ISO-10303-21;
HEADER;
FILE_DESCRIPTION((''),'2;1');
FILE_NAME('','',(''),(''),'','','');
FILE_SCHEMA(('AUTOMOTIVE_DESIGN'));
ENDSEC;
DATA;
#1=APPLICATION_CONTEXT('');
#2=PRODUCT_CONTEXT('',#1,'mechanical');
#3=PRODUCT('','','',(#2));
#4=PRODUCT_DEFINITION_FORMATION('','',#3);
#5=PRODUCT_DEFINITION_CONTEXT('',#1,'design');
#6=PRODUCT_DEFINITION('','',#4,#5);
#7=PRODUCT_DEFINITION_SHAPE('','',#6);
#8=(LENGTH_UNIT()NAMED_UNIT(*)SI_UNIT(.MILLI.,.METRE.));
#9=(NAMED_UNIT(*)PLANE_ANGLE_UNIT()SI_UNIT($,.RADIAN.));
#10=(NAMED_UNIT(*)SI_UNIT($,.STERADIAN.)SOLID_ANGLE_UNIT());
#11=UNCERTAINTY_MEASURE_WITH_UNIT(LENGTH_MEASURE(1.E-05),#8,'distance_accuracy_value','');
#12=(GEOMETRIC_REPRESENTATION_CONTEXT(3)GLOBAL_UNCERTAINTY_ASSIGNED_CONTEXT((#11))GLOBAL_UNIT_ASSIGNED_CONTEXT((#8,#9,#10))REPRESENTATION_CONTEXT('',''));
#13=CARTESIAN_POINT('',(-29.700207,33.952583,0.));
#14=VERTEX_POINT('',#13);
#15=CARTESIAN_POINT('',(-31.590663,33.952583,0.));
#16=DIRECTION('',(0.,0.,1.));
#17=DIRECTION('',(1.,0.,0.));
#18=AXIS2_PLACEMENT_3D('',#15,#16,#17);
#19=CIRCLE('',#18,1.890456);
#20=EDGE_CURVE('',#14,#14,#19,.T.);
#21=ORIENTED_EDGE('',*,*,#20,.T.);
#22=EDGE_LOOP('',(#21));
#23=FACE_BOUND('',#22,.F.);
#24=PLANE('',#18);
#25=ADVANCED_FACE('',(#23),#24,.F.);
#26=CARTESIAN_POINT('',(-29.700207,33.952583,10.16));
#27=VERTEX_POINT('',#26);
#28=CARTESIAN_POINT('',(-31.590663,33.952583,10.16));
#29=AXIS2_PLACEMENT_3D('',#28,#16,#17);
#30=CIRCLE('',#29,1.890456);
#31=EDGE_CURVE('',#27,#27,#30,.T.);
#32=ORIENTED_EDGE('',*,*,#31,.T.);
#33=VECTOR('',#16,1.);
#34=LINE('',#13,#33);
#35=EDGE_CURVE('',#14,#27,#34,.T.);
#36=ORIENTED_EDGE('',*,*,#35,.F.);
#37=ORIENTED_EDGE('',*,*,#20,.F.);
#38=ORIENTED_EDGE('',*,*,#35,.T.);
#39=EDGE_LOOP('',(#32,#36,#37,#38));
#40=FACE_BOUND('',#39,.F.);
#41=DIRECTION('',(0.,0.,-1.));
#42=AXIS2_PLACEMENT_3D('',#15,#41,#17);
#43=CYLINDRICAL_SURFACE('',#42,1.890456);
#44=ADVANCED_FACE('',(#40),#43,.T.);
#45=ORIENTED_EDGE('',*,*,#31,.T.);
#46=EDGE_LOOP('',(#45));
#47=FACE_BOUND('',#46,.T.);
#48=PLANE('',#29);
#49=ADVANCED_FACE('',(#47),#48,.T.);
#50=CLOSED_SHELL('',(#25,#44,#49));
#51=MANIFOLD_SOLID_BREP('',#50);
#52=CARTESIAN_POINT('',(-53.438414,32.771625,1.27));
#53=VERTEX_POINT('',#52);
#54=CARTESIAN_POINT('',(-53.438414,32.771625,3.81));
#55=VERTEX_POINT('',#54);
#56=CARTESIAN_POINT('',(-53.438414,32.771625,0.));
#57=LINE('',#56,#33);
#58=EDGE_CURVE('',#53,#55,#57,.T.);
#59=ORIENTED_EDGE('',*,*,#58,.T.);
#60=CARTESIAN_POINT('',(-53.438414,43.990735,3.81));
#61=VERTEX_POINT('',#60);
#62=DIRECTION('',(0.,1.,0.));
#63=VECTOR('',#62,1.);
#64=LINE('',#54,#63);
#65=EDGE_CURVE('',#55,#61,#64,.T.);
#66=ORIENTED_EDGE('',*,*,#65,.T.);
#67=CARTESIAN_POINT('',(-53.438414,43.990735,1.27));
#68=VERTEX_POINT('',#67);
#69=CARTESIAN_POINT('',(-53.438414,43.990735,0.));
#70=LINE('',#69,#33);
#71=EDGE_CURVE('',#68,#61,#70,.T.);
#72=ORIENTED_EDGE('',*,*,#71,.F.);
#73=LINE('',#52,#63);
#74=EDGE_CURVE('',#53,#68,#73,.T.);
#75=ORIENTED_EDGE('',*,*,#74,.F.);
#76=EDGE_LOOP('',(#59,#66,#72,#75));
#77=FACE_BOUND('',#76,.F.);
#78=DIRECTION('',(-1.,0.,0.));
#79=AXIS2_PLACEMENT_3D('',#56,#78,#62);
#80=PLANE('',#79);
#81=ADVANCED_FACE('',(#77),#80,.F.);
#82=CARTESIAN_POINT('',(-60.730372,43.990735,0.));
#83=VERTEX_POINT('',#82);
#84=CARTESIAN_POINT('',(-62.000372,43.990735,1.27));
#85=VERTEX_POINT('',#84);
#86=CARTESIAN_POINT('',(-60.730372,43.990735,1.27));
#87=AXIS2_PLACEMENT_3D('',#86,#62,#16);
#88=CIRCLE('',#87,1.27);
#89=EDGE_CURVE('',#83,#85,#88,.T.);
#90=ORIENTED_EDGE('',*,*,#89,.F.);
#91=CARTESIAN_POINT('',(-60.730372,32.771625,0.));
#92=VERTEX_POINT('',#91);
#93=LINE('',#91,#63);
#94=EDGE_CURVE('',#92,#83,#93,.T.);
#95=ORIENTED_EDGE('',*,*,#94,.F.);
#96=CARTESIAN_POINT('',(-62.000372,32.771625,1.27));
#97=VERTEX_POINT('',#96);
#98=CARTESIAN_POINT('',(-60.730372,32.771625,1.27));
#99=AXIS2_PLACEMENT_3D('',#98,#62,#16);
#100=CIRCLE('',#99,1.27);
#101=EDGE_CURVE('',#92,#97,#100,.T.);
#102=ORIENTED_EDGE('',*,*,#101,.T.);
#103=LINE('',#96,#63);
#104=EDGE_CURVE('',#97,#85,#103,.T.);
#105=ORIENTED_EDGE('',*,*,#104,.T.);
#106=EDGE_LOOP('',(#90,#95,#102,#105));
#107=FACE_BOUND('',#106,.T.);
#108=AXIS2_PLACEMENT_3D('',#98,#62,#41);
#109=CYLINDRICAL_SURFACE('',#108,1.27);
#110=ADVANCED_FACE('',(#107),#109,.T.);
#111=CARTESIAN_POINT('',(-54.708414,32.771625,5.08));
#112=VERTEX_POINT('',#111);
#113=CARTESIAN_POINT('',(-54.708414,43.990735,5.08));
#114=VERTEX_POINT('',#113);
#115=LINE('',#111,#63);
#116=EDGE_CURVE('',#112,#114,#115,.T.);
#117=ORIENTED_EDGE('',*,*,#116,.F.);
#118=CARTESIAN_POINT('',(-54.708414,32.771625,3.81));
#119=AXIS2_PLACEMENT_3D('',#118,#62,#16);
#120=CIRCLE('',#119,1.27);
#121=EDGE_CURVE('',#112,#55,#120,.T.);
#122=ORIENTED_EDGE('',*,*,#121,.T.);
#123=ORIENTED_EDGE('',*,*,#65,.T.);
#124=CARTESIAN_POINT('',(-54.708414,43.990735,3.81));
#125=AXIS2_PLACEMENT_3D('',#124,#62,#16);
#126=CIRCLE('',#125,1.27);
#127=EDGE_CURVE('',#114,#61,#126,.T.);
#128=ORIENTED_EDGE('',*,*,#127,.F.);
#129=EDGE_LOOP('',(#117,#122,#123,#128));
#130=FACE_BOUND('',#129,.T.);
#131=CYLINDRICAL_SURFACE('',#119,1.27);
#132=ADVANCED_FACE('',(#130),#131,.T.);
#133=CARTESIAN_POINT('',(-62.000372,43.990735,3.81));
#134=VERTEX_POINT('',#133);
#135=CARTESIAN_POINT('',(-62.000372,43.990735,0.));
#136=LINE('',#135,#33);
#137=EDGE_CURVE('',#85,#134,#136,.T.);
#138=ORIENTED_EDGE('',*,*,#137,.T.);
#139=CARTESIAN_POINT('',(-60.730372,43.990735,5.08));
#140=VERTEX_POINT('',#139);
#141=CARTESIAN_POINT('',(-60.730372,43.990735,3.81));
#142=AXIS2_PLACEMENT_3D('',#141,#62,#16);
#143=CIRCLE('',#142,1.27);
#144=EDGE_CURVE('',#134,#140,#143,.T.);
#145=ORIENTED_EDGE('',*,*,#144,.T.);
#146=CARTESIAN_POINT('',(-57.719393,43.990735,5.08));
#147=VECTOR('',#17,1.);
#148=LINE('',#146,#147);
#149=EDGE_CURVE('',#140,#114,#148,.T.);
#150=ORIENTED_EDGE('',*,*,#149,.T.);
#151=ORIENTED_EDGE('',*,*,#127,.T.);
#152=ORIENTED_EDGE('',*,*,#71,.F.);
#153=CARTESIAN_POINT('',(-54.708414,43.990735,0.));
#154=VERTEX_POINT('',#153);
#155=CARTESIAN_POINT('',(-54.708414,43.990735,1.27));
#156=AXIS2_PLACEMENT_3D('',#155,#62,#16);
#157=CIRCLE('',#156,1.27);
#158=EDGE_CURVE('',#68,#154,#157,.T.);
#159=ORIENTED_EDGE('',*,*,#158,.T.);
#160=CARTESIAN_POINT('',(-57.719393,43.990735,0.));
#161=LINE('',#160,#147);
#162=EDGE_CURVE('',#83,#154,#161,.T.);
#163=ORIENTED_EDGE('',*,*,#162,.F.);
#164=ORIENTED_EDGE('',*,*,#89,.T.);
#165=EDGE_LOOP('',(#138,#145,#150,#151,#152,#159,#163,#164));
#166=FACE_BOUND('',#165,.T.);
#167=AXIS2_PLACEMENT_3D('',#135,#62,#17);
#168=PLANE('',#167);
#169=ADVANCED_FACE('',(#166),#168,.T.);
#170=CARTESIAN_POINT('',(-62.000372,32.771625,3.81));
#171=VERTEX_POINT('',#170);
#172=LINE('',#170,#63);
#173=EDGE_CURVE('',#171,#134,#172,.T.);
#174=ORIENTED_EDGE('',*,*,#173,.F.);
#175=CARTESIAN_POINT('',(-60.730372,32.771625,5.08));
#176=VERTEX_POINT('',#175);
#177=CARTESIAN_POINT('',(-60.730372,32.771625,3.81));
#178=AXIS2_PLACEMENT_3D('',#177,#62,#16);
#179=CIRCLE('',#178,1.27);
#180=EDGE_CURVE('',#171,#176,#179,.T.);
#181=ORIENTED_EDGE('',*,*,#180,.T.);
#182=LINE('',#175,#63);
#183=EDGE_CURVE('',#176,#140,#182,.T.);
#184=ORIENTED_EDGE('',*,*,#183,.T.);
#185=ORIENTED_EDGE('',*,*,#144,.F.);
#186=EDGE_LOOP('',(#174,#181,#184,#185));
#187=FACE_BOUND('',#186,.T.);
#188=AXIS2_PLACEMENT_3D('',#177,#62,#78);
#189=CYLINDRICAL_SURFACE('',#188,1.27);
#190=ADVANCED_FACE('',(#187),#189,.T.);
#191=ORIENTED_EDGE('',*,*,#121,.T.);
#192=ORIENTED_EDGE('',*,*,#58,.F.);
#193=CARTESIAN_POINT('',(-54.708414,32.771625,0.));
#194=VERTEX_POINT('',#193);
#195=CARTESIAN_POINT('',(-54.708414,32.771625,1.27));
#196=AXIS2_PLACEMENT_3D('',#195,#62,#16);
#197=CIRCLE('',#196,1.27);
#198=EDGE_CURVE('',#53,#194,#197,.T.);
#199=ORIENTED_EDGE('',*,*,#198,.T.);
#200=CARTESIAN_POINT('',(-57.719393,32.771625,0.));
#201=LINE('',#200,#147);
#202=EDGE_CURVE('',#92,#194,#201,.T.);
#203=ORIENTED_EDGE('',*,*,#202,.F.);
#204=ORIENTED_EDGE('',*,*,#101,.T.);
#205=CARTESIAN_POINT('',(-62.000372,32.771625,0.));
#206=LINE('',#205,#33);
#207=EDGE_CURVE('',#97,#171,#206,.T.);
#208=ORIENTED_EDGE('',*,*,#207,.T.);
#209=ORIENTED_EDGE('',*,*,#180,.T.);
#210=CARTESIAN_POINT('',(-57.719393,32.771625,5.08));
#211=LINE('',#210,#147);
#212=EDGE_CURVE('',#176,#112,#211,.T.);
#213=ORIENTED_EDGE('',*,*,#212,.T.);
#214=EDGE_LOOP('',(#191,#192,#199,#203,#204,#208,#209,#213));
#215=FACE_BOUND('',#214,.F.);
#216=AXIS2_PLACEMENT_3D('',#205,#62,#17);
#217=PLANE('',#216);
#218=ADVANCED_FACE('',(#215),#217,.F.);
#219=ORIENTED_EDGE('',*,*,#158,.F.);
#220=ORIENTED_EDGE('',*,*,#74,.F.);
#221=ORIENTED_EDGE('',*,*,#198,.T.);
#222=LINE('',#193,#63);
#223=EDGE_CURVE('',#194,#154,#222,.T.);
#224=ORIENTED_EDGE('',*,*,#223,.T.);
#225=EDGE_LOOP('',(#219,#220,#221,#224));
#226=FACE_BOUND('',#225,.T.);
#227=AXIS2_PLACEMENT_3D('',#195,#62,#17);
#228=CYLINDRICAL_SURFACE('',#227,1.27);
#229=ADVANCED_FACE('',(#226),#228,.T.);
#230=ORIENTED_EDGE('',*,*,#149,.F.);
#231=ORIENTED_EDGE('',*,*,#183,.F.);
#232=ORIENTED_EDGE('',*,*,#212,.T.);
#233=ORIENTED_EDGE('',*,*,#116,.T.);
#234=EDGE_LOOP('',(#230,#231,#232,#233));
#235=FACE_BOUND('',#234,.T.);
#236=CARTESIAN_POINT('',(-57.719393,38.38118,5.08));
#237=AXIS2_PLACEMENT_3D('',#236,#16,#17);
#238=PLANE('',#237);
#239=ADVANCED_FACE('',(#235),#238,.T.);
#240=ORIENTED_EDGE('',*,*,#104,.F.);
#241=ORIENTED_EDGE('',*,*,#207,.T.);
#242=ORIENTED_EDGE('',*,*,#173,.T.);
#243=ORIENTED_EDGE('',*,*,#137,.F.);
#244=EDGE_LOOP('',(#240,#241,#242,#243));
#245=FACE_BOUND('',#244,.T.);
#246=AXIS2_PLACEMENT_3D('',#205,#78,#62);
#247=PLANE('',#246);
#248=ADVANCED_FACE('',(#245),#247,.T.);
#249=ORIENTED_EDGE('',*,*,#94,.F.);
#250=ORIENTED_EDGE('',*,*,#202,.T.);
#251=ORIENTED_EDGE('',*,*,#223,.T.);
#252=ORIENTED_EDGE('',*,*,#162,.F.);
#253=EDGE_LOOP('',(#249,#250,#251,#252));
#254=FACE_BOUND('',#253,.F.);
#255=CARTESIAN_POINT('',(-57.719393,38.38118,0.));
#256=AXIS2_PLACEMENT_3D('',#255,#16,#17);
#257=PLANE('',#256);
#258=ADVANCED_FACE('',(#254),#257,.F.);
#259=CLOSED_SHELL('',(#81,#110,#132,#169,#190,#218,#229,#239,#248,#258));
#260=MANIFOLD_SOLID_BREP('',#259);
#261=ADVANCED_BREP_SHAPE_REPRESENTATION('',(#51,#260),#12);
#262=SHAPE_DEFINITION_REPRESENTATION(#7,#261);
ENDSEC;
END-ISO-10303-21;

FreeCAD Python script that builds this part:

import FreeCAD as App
import Part
import Sketcher
from FreeCAD import Vector
Q = App.Units.Quantity


def edges_at(feature, points):
    """Names of the edges that pass closest to the given points."""
    edges = feature.Shape.Edges
    near = lambda p: min(range(len(edges)), key=lambda i: edges[i].distToShape(Part.Vertex(*p))[0])
    return sorted({f"Edge{near(p) + 1}" for p in points})

doc = App.newDocument("Part")
body = doc.addObject("PartDesign::Body", "Body")

# Sketch on XY plane
sketch1 = body.newObject("Sketcher::SketchObject", "Sketch")
sketch1.AttachmentSupport = (doc.getObject("XY_Plane"), [""])
sketch1.MapMode = "FlatFace"
sketch1.addGeometry(Part.Circle(Vector(-31.6, 34, 0), Vector(0, 0, 1), 1.9), False)
sketch1.addConstraint(Sketcher.Constraint("Diameter", 0, 3.780912))
sketch1.addConstraint(Sketcher.Constraint("DistanceX", 0, 3, -1, 1, 31.590663))
sketch1.addConstraint(Sketcher.Constraint("DistanceY", -1, 1, 0, 3, 33.952583))
pad1 = body.newObject("PartDesign::Pad", "Pad")
pad1.Profile = sketch1
pad1.Length = Q("0.4 in")
body2 = doc.addObject("PartDesign::Body", "Body001")

# Sketch on XY plane
sketch2 = body2.newObject("Sketcher::SketchObject", "Sketch001")
sketch2.AttachmentSupport = (doc.getObject("XY_Plane001"), [""])
sketch2.MapMode = "FlatFace"
sketch2.addGeometry(Part.LineSegment(Vector(-62, 44, 0), Vector(-62, 33, 0)), False)
sketch2.addGeometry(Part.LineSegment(Vector(-62, 33, 0), Vector(-53, 33, 0)), False)
sketch2.addGeometry(Part.LineSegment(Vector(-53, 33, 0), Vector(-53, 44, 0)), False)
sketch2.addGeometry(Part.LineSegment(Vector(-53, 44, 0), Vector(-62, 44, 0)), False)
sketch2.addConstraint(Sketcher.Constraint("Coincident", 0, 2, 1, 1))
sketch2.addConstraint(Sketcher.Constraint("Coincident", 1, 2, 2, 1))
sketch2.addConstraint(Sketcher.Constraint("Coincident", 2, 2, 3, 1))
sketch2.addConstraint(Sketcher.Constraint("Coincident", 3, 2, 0, 1))
sketch2.addConstraint(Sketcher.Constraint("Vertical", 0))
sketch2.addConstraint(Sketcher.Constraint("Horizontal", 1))
sketch2.addConstraint(Sketcher.Constraint("Vertical", 2))
sketch2.addConstraint(Sketcher.Constraint("Horizontal", 3))
sketch2.addConstraint(Sketcher.Constraint("DistanceY", 0, 2, 0, 1, 11.21911))
sketch2.addConstraint(Sketcher.Constraint("DistanceX", 1, 1, 1, 2, 8.561958))
sketch2.addConstraint(Sketcher.Constraint("DistanceX", 0, 2, -1, 1, 62.000372))
sketch2.addConstraint(Sketcher.Constraint("DistanceY", -1, 1, 0, 2, 32.771625))
pad2 = body2.newObject("PartDesign::Pad", "Pad001")
pad2.Profile = sketch2
pad2.Length = Q("0.2 in")
doc.recompute()

fillet = body2.newObject("PartDesign::Fillet", "Fillet")
fillet.Base = (pad2, edges_at(pad2, [(-62, 38.381, 5.08)]))
fillet.Radius = Q("0.05 in")
doc.recompute()

fillet2 = body2.newObject("PartDesign::Fillet", "Fillet001")
fillet2.Base = (fillet, edges_at(fillet, [(-53.438, 38.381, 5.08)]))
fillet2.Radius = Q("0.05 in")
doc.recompute()

fillet3 = body2.newObject("PartDesign::Fillet", "Fillet002")
fillet3.Base = (fillet2, edges_at(fillet2, [(-53.438, 38.381, 0)]))
fillet3.Radius = Q("0.05 in")
doc.recompute()

fillet4 = body2.newObject("PartDesign::Fillet", "Fillet003")
fillet4.Base = (fillet3, edges_at(fillet3, [(-62, 38.381, 0)]))
fillet4.Radius = Q("0.05 in")

doc.recompute()
